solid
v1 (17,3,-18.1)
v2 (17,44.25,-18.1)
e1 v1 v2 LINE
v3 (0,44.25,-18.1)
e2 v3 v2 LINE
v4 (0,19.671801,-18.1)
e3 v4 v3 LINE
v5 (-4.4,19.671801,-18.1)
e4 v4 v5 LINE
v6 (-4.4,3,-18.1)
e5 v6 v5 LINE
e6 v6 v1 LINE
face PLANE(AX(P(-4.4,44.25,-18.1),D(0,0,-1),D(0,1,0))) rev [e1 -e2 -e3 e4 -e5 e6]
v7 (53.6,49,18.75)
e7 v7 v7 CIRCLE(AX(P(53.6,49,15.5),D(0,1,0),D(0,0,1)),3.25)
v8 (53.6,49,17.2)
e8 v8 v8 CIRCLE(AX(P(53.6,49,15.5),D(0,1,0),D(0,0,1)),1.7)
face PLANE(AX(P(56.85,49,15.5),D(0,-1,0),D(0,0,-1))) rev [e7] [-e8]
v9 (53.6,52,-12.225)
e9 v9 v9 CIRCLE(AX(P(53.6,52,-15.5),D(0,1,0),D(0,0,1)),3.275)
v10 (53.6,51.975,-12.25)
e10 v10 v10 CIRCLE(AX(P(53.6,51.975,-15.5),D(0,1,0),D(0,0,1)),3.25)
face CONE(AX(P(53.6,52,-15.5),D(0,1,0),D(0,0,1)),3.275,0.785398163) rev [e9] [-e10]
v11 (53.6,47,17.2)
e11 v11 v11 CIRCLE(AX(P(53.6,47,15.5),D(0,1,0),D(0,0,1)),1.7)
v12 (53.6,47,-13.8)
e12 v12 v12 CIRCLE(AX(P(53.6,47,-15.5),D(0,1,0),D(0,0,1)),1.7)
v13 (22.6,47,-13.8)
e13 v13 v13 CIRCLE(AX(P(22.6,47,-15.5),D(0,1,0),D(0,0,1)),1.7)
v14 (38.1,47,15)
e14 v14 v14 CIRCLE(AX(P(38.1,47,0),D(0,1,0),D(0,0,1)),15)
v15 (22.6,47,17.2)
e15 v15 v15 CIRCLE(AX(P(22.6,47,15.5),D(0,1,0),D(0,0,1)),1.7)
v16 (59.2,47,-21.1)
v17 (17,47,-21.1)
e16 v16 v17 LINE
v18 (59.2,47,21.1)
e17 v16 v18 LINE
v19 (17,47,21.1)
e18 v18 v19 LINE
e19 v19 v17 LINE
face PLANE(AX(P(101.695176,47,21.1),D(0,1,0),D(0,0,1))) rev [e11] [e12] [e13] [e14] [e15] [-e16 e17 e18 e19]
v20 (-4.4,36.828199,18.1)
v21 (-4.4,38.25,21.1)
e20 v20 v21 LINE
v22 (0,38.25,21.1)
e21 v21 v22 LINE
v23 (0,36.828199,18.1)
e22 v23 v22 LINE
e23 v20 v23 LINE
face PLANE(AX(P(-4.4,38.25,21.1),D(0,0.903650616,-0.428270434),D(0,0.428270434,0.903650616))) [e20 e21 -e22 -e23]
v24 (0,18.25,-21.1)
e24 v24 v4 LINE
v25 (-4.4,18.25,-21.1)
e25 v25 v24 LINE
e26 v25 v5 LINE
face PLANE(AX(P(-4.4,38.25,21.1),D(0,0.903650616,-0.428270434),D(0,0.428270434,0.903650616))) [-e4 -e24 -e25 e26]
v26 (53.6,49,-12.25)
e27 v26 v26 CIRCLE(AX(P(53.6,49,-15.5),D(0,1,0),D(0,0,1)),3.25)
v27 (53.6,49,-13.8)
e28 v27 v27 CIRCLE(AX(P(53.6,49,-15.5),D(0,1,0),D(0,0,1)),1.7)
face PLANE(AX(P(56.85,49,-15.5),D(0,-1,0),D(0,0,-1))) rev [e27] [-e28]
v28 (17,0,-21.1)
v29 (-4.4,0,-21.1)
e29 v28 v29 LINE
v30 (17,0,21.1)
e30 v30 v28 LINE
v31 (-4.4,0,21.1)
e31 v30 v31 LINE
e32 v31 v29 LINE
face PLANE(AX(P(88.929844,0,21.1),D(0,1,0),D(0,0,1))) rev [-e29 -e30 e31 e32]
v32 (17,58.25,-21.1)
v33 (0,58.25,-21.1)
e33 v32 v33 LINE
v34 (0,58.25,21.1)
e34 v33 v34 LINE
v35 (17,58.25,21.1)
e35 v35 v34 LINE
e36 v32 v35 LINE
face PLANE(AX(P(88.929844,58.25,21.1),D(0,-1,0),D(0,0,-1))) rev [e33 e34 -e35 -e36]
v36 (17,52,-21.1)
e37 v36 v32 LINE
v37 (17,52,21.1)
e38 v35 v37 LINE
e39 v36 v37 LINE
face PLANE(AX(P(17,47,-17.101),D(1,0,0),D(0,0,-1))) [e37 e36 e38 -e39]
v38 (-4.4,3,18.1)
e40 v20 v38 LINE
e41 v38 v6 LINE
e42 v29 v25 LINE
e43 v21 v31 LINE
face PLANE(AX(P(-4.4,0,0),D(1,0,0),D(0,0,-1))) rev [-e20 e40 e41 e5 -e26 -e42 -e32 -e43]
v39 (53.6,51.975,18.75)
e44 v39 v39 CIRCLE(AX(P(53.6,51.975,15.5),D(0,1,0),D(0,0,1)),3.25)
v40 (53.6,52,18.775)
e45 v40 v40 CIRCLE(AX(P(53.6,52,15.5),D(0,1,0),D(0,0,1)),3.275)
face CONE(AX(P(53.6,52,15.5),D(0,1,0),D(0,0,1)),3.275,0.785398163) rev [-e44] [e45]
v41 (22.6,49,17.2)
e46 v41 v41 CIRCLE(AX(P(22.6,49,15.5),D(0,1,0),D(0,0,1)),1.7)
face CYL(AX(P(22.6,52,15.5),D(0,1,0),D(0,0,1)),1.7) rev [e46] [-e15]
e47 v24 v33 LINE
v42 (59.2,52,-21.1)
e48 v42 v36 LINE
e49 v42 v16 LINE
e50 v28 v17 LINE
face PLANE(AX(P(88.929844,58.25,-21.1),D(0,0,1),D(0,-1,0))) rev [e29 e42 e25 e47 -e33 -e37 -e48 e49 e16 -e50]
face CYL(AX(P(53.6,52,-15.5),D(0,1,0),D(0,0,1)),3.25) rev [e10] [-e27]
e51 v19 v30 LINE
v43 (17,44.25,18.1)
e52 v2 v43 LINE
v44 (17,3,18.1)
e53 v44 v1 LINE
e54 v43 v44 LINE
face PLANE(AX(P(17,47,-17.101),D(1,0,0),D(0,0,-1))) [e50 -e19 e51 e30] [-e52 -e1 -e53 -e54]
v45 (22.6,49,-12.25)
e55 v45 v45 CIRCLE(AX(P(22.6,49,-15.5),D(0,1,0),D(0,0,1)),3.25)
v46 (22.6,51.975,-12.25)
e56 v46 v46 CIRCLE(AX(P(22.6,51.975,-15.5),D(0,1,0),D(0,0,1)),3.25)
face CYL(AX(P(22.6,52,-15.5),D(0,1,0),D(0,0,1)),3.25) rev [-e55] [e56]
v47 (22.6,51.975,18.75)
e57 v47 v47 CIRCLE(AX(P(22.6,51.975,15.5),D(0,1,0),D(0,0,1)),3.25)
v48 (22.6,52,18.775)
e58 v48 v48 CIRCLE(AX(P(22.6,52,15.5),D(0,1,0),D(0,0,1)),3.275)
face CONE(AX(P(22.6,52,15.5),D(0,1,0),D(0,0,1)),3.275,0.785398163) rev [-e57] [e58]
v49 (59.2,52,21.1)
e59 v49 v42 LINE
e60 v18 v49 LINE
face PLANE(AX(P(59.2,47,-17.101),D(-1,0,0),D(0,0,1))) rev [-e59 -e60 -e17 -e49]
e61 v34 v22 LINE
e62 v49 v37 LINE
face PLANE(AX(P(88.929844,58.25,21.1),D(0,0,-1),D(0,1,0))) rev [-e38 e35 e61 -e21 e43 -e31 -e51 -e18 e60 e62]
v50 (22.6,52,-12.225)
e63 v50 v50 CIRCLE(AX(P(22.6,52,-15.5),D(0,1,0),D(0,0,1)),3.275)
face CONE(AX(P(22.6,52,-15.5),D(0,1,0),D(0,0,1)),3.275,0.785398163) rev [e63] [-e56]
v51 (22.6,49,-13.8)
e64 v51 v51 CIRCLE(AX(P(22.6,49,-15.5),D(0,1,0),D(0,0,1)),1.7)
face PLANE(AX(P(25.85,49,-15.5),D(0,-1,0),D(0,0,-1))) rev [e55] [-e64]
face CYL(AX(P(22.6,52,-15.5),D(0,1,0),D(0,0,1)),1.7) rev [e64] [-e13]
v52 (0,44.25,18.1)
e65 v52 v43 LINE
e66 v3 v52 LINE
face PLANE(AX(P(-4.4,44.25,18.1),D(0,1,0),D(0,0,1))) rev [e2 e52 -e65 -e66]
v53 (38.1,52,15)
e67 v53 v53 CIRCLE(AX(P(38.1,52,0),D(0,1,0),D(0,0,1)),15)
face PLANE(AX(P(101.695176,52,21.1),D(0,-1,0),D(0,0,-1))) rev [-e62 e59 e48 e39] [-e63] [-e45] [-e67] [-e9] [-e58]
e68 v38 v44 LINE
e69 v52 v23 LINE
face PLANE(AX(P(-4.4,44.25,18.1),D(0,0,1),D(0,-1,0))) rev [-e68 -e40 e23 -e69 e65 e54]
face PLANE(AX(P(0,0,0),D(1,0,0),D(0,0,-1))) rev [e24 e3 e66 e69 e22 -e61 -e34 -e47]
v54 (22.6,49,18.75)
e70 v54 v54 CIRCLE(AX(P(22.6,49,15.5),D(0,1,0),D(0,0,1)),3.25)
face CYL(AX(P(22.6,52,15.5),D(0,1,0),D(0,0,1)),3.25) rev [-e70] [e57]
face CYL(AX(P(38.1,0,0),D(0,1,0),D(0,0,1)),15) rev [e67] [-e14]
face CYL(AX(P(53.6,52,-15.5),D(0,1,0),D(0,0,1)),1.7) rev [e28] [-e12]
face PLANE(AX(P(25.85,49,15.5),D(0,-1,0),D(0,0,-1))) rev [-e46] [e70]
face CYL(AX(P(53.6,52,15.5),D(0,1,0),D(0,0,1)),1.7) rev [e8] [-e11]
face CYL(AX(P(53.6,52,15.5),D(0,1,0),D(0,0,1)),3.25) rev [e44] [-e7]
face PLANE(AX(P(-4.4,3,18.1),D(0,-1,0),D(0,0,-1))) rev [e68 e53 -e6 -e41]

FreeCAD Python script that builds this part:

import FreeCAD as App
import Part
import Sketcher
Q = App.Units.Quantity

doc = App.newDocument("Part")
params = doc.addObject("Spreadsheet::Sheet", "Params")
for row, (alias, value) in enumerate([
    ("sketch1_height", "42.2 mm"),
    ("sketch1_width", "58.25 mm"),
    ("pad1_length", "17 mm"),
    ("sketch2_width", "5 mm"),
    ("sketch2_height", "42.2 mm"),
    ("pad2_length", "42.2 mm"),
    ("sketch3_width", "52 mm"),
    ("sketch3_width2", "49 mm"),
    ("sketch3_height", "1.7 mm"),
    ("sketch3_height2", "1.55 mm"),
    ("groove_angle", "360 deg"),
    ("linearpattern_pitch", "31 mm"),
    ("linearpattern2_pitch", "43.84062 mm"),
    ("linearpattern3_pitch", "31 mm"),
    ("sketch4_diameter", "30 mm"),
    ("sketch5_height", "42.2 mm"),
    ("sketch5_width", "38.25 mm"),
    ("pad3_length", "4.4 mm"),
    ("sketch6_height", "36.2 mm"),
    ("sketch6_width", "41.25 mm"),
], start=1):
    params.set(f"A{row}", alias)
    params.set(f"B{row}", "=" + value)
    params.setAlias(f"B{row}", alias)

body = doc.addObject("PartDesign::Body", "Body")

# Sketch on YZ plane
sketch1 = body.newObject("Sketcher::SketchObject", "Sketch")
sketch1.AttachmentSupport = (doc.getObject("YZ_Plane"), [""])
sketch1.MapMode = "FlatFace"
sketch1.addGeometry([
    Part.LineSegment(App.Vector(58, 21, 0), App.Vector(0, 21, 0)),
    Part.LineSegment(App.Vector(0, 21, 0), App.Vector(0, -21, 0)),
    Part.LineSegment(App.Vector(0, -21, 0), App.Vector(58, -21, 0)),
    Part.LineSegment(App.Vector(58, -21, 0), App.Vector(58, 21, 0)),
], False)
sketch1.addConstraint([
    Sketcher.Constraint("Coincident", 0, 2, 1, 1),
    Sketcher.Constraint("Coincident", 1, 2, 2, 1),
    Sketcher.Constraint("Coincident", 2, 2, 3, 1),
    Sketcher.Constraint("Coincident", 3, 2, 0, 1),
    Sketcher.Constraint("Horizontal", 0),
    Sketcher.Constraint("Vertical", 1),
    Sketcher.Constraint("Horizontal", 2),
    Sketcher.Constraint("Vertical", 3),
    Sketcher.Constraint("Symmetric", 0, 2, 1, 2, -1, 1),
    Sketcher.Constraint("DistanceY", 1, 2, 1, 1, Q("42.2 mm")),
    Sketcher.Constraint("DistanceX", 0, 2, 0, 1, Q("58.25 mm")),
])
sketch1.setExpression("Constraints[9]", "Params.sketch1_height")
sketch1.setExpression("Constraints[10]", "Params.sketch1_width")
pad1 = body.newObject("PartDesign::Pad", "Pad")
pad1.Profile = sketch1
pad1.setExpression("Length", "Params.pad1_length")

# Sketch on YZ plane
sketch2 = body.newObject("Sketcher::SketchObject", "Sketch001")
sketch2.AttachmentSupport = (doc.getObject("YZ_Plane"), [""])
sketch2.MapMode = "FlatFace"
sketch2.AttachmentOffset = App.Placement(App.Vector(0, 0, 17), App.Rotation())
sketch2.addGeometry([
    Part.LineSegment(App.Vector(52, 21, 0), App.Vector(47, 21, 0)),
    Part.LineSegment(App.Vector(47, 21, 0), App.Vector(47, -21, 0)),
    Part.LineSegment(App.Vector(47, -21, 0), App.Vector(52, -21, 0)),
    Part.LineSegment(App.Vector(52, -21, 0), App.Vector(52, 21, 0)),
], False)
sketch2.addConstraint([
    Sketcher.Constraint("Coincident", 0, 2, 1, 1),
    Sketcher.Constraint("Coincident", 1, 2, 2, 1),
    Sketcher.Constraint("Coincident", 2, 2, 3, 1),
    Sketcher.Constraint("Coincident", 3, 2, 0, 1),
    Sketcher.Constraint("Horizontal", 0),
    Sketcher.Constraint("Vertical", 1),
    Sketcher.Constraint("Horizontal", 2),
    Sketcher.Constraint("Vertical", 3),
    Sketcher.Constraint("DistanceX", 0, 2, 0, 1, Q("5 mm")),
    Sketcher.Constraint("DistanceY", 1, 2, 1, 1, Q("42.2 mm")),
    Sketcher.Constraint("DistanceX", -1, 1, 0, 2, Q("47 mm")),
    Sketcher.Constraint("DistanceY", -1, 1, 0, 2, Q("21.1 mm")),
])
sketch2.setExpression("Constraints[8]", "Params.sketch2_width")
sketch2.setExpression("Constraints[9]", "Params.sketch2_height")
pad2 = body.newObject("PartDesign::Pad", "Pad001")
pad2.Profile = sketch2
pad2.setExpression("Length", "Params.pad2_length")

# Sketch on YZ plane
sketch3 = body.newObject("Sketcher::SketchObject", "Sketch002")
sketch3.AttachmentSupport = (doc.getObject("YZ_Plane"), [""])
sketch3.MapMode = "FlatFace"
sketch3.AttachmentOffset = App.Placement(App.Vector(0, 0, 53.6), App.Rotation())
sketch3.addGeometry([
    Part.LineSegment(App.Vector(0, 15.5, 0), App.Vector(52, 15.5, 0)),  # 0
    Part.LineSegment(App.Vector(52, 15.5, 0), App.Vector(52, 18.775, 0)),  # 1
    Part.LineSegment(App.Vector(52, 18.775, 0), App.Vector(51.975, 18.75, 0)),  # 2
    Part.LineSegment(App.Vector(51.975, 18.75, 0), App.Vector(49, 18.75, 0)),  # 3
    Part.LineSegment(App.Vector(49, 18.75, 0), App.Vector(49, 17.2, 0)),  # 4
    Part.LineSegment(App.Vector(49, 17.2, 0), App.Vector(0, 17.2, 0)),  # 5
    Part.LineSegment(App.Vector(0, 17.2, 0), App.Vector(0, 15.5, 0)),  # 6
], False)
sketch3.addGeometry(Part.LineSegment(App.Vector(52, 15.5, 0), App.Vector(0, 15.5, 0)), True)  # axis
sketch3.addConstraint([
    Sketcher.Constraint("Coincident", 0, 2, 1, 1),
    Sketcher.Constraint("Coincident", 1, 2, 2, 1),
    Sketcher.Constraint("Coincident", 2, 2, 3, 1),
    Sketcher.Constraint("Coincident", 3, 2, 4, 1),
    Sketcher.Constraint("Coincident", 4, 2, 5, 1),
    Sketcher.Constraint("Coincident", 5, 2, 6, 1),
    Sketcher.Constraint("Coincident", 6, 2, 0, 1),
    Sketcher.Constraint("Horizontal", 0),
    Sketcher.Constraint("Vertical", 1),
    Sketcher.Constraint("Horizontal", 3),
    Sketcher.Constraint("Vertical", 4),
    Sketcher.Constraint("Horizontal", 5),
    Sketcher.Constraint("Vertical", 6),
    Sketcher.Constraint("Horizontal", 7),
    Sketcher.Constraint("Coincident", 7, 1, 0, 2),
    Sketcher.Constraint("PointOnObject", 5, 2, -2),
    Sketcher.Constraint("PointOnObject", 7, 2, -2),
    Sketcher.Constraint("DistanceX", 0, 1, 0, 2, Q("52 mm")),
    Sketcher.Constraint("DistanceX", 5, 2, 5, 1, Q("49 mm")),
    Sketcher.Constraint("Angle", 2, Q("-135 deg")),
    Sketcher.Constraint("DistanceY", 6, 2, 6, 1, Q("1.7 mm")),
    Sketcher.Constraint("DistanceY", 4, 2, 4, 1, Q("1.55 mm")),
    Sketcher.Constraint("DistanceY", -1, 1, 0, 2, Q("15.5 mm")),
    Sketcher.Constraint("DistanceX", 3, 2, 3, 1, Q("2.975 mm")),
])
sketch3.setExpression("Constraints[17]", "Params.sketch3_width")
sketch3.setExpression("Constraints[18]", "Params.sketch3_width2")
sketch3.setExpression("Constraints[20]", "Params.sketch3_height")
sketch3.setExpression("Constraints[21]", "Params.sketch3_height2")
groove = body.newObject("PartDesign::Groove", "Groove")
groove.Profile = sketch3
groove.ReferenceAxis = (sketch3, ["Axis0"])
groove.setExpression("Angle", "Params.groove_angle")
doc.recompute()

linearpattern = body.newObject("PartDesign::LinearPattern", "LinearPattern")
linearpattern.Originals = [groove]
linearpattern.Direction = (doc.getObject("Z_Axis"), [""])
linearpattern.Mode = "offset"
linearpattern.setExpression("Offset", "Params.linearpattern_pitch")
linearpattern.Occurrences = 2
linearpattern.Reversed = True
body.Tip = linearpattern
doc.recompute()

datumline = body.newObject("PartDesign::Line", "DatumLine")
datumline.Placement = App.Placement(App.Vector(0, 0, 0), App.Rotation(App.Vector(0, 0, 1), App.Vector(-0.707106781, 0, -0.707106781)))
linearpattern2 = body.newObject("PartDesign::LinearPattern", "LinearPattern001")
linearpattern2.Originals = [groove]
linearpattern2.Direction = (datumline, [""])
linearpattern2.Mode = "offset"
linearpattern2.setExpression("Offset", "Params.linearpattern2_pitch")
linearpattern2.Occurrences = 2
body.Tip = linearpattern2
doc.recompute()

linearpattern3 = body.newObject("PartDesign::LinearPattern", "LinearPattern002")
linearpattern3.Originals = [groove]
linearpattern3.Direction = (doc.getObject("X_Axis"), [""])
linearpattern3.Mode = "offset"
linearpattern3.setExpression("Offset", "Params.linearpattern3_pitch")
linearpattern3.Occurrences = 2
linearpattern3.Reversed = True
body.Tip = linearpattern3

# Sketch on XZ plane
sketch4 = body.newObject("Sketcher::SketchObject", "Sketch003")
sketch4.AttachmentSupport = (doc.getObject("XZ_Plane"), [""])
sketch4.MapMode = "FlatFace"
sketch4.AttachmentOffset = App.Placement(App.Vector(0, 0, -52), App.Rotation())
sketch4.addGeometry(Part.Circle(App.Vector(38, 0, 0), App.Vector(0, 0, 1), 15), False)
sketch4.addConstraint([
    Sketcher.Constraint("PointOnObject", 0, 3, -1),
    Sketcher.Constraint("Diameter", 0, Q("30 mm")),
    Sketcher.Constraint("DistanceX", -1, 1, 0, 3, Q("38.1 mm")),
])
sketch4.setExpression("Constraints[1]", "Params.sketch4_diameter")
pocket1 = body.newObject("PartDesign::Pocket", "Pocket")
pocket1.Profile = sketch4
pocket1.Type = "ThroughAll"
pocket1.Reversed = True

# Sketch on YZ plane
sketch5 = body.newObject("Sketcher::SketchObject", "Sketch004")
sketch5.AttachmentSupport = (doc.getObject("YZ_Plane"), [""])
sketch5.MapMode = "FlatFace"
sketch5.addGeometry([
    Part.LineSegment(App.Vector(18, -21, 0), App.Vector(38, 21, 0)),
    Part.LineSegment(App.Vector(38, 21, 0), App.Vector(0, 21, 0)),
    Part.LineSegment(App.Vector(0, 21, 0), App.Vector(0, -21, 0)),
    Part.LineSegment(App.Vector(0, -21, 0), App.Vector(18, -21, 0)),
], False)
sketch5.addConstraint([
    Sketcher.Constraint("Coincident", 0, 2, 1, 1),
    Sketcher.Constraint("Coincident", 1, 2, 2, 1),
    Sketcher.Constraint("Coincident", 2, 2, 3, 1),
    Sketcher.Constraint("Coincident", 3, 2, 0, 1),
    Sketcher.Constraint("Horizontal", 1),
    Sketcher.Constraint("Vertical", 2),
    Sketcher.Constraint("Horizontal", 3),
    Sketcher.Constraint("Symmetric", 1, 2, 2, 2, -1, 1),
    Sketcher.Constraint("DistanceY", 2, 2, 2, 1, Q("42.2 mm")),
    Sketcher.Constraint("DistanceX", 3, 2, 0, 2, Q("20 mm")),
    Sketcher.Constraint("DistanceX", 1, 2, 1, 1, Q("38.25 mm")),
])
sketch5.setExpression("Constraints[8]", "Params.sketch5_height")
sketch5.setExpression("Constraints[10]", "Params.sketch5_width")
pad3 = body.newObject("PartDesign::Pad", "Pad002")
pad3.Profile = sketch5
pad3.setExpression("Length", "Params.pad3_length")
pad3.Reversed = True

# Sketch on YZ plane
sketch6 = body.newObject("Sketcher::SketchObject", "Sketch005")
sketch6.AttachmentSupport = (doc.getObject("YZ_Plane"), [""])
sketch6.MapMode = "FlatFace"
sketch6.AttachmentOffset = App.Placement(App.Vector(0, 0, 17), App.Rotation())
sketch6.addGeometry([
    Part.LineSegment(App.Vector(44, 18, 0), App.Vector(3, 18, 0)),
    Part.LineSegment(App.Vector(3, 18, 0), App.Vector(3, -18, 0)),
    Part.LineSegment(App.Vector(3, -18, 0), App.Vector(44, -18, 0)),
    Part.LineSegment(App.Vector(44, -18, 0), App.Vector(44, 18, 0)),
], False)
sketch6.addConstraint([
    Sketcher.Constraint("Coincident", 0, 2, 1, 1),
    Sketcher.Constraint("Coincident", 1, 2, 2, 1),
    Sketcher.Constraint("Coincident", 2, 2, 3, 1),
    Sketcher.Constraint("Coincident", 3, 2, 0, 1),
    Sketcher.Constraint("Horizontal", 0),
    Sketcher.Constraint("Vertical", 1),
    Sketcher.Constraint("Horizontal", 2),
    Sketcher.Constraint("Vertical", 3),
    Sketcher.Constraint("DistanceY", 1, 2, 1, 1, Q("36.2 mm")),
    Sketcher.Constraint("DistanceX", -1, 1, 0, 2, Q("3 mm")),
    Sketcher.Constraint("DistanceX", 0, 2, 0, 1, Q("41.25 mm")),
    Sketcher.Constraint("DistanceY", -1, 1, 0, 2, Q("18.1 mm")),
])
sketch6.setExpression("Constraints[8]", "Params.sketch6_height")
sketch6.setExpression("Constraints[10]", "Params.sketch6_width")
pocket2 = body.newObject("PartDesign::Pocket", "Pocket001")
pocket2.Profile = sketch6
pocket2.Type = "ThroughAll"

doc.recompute()
